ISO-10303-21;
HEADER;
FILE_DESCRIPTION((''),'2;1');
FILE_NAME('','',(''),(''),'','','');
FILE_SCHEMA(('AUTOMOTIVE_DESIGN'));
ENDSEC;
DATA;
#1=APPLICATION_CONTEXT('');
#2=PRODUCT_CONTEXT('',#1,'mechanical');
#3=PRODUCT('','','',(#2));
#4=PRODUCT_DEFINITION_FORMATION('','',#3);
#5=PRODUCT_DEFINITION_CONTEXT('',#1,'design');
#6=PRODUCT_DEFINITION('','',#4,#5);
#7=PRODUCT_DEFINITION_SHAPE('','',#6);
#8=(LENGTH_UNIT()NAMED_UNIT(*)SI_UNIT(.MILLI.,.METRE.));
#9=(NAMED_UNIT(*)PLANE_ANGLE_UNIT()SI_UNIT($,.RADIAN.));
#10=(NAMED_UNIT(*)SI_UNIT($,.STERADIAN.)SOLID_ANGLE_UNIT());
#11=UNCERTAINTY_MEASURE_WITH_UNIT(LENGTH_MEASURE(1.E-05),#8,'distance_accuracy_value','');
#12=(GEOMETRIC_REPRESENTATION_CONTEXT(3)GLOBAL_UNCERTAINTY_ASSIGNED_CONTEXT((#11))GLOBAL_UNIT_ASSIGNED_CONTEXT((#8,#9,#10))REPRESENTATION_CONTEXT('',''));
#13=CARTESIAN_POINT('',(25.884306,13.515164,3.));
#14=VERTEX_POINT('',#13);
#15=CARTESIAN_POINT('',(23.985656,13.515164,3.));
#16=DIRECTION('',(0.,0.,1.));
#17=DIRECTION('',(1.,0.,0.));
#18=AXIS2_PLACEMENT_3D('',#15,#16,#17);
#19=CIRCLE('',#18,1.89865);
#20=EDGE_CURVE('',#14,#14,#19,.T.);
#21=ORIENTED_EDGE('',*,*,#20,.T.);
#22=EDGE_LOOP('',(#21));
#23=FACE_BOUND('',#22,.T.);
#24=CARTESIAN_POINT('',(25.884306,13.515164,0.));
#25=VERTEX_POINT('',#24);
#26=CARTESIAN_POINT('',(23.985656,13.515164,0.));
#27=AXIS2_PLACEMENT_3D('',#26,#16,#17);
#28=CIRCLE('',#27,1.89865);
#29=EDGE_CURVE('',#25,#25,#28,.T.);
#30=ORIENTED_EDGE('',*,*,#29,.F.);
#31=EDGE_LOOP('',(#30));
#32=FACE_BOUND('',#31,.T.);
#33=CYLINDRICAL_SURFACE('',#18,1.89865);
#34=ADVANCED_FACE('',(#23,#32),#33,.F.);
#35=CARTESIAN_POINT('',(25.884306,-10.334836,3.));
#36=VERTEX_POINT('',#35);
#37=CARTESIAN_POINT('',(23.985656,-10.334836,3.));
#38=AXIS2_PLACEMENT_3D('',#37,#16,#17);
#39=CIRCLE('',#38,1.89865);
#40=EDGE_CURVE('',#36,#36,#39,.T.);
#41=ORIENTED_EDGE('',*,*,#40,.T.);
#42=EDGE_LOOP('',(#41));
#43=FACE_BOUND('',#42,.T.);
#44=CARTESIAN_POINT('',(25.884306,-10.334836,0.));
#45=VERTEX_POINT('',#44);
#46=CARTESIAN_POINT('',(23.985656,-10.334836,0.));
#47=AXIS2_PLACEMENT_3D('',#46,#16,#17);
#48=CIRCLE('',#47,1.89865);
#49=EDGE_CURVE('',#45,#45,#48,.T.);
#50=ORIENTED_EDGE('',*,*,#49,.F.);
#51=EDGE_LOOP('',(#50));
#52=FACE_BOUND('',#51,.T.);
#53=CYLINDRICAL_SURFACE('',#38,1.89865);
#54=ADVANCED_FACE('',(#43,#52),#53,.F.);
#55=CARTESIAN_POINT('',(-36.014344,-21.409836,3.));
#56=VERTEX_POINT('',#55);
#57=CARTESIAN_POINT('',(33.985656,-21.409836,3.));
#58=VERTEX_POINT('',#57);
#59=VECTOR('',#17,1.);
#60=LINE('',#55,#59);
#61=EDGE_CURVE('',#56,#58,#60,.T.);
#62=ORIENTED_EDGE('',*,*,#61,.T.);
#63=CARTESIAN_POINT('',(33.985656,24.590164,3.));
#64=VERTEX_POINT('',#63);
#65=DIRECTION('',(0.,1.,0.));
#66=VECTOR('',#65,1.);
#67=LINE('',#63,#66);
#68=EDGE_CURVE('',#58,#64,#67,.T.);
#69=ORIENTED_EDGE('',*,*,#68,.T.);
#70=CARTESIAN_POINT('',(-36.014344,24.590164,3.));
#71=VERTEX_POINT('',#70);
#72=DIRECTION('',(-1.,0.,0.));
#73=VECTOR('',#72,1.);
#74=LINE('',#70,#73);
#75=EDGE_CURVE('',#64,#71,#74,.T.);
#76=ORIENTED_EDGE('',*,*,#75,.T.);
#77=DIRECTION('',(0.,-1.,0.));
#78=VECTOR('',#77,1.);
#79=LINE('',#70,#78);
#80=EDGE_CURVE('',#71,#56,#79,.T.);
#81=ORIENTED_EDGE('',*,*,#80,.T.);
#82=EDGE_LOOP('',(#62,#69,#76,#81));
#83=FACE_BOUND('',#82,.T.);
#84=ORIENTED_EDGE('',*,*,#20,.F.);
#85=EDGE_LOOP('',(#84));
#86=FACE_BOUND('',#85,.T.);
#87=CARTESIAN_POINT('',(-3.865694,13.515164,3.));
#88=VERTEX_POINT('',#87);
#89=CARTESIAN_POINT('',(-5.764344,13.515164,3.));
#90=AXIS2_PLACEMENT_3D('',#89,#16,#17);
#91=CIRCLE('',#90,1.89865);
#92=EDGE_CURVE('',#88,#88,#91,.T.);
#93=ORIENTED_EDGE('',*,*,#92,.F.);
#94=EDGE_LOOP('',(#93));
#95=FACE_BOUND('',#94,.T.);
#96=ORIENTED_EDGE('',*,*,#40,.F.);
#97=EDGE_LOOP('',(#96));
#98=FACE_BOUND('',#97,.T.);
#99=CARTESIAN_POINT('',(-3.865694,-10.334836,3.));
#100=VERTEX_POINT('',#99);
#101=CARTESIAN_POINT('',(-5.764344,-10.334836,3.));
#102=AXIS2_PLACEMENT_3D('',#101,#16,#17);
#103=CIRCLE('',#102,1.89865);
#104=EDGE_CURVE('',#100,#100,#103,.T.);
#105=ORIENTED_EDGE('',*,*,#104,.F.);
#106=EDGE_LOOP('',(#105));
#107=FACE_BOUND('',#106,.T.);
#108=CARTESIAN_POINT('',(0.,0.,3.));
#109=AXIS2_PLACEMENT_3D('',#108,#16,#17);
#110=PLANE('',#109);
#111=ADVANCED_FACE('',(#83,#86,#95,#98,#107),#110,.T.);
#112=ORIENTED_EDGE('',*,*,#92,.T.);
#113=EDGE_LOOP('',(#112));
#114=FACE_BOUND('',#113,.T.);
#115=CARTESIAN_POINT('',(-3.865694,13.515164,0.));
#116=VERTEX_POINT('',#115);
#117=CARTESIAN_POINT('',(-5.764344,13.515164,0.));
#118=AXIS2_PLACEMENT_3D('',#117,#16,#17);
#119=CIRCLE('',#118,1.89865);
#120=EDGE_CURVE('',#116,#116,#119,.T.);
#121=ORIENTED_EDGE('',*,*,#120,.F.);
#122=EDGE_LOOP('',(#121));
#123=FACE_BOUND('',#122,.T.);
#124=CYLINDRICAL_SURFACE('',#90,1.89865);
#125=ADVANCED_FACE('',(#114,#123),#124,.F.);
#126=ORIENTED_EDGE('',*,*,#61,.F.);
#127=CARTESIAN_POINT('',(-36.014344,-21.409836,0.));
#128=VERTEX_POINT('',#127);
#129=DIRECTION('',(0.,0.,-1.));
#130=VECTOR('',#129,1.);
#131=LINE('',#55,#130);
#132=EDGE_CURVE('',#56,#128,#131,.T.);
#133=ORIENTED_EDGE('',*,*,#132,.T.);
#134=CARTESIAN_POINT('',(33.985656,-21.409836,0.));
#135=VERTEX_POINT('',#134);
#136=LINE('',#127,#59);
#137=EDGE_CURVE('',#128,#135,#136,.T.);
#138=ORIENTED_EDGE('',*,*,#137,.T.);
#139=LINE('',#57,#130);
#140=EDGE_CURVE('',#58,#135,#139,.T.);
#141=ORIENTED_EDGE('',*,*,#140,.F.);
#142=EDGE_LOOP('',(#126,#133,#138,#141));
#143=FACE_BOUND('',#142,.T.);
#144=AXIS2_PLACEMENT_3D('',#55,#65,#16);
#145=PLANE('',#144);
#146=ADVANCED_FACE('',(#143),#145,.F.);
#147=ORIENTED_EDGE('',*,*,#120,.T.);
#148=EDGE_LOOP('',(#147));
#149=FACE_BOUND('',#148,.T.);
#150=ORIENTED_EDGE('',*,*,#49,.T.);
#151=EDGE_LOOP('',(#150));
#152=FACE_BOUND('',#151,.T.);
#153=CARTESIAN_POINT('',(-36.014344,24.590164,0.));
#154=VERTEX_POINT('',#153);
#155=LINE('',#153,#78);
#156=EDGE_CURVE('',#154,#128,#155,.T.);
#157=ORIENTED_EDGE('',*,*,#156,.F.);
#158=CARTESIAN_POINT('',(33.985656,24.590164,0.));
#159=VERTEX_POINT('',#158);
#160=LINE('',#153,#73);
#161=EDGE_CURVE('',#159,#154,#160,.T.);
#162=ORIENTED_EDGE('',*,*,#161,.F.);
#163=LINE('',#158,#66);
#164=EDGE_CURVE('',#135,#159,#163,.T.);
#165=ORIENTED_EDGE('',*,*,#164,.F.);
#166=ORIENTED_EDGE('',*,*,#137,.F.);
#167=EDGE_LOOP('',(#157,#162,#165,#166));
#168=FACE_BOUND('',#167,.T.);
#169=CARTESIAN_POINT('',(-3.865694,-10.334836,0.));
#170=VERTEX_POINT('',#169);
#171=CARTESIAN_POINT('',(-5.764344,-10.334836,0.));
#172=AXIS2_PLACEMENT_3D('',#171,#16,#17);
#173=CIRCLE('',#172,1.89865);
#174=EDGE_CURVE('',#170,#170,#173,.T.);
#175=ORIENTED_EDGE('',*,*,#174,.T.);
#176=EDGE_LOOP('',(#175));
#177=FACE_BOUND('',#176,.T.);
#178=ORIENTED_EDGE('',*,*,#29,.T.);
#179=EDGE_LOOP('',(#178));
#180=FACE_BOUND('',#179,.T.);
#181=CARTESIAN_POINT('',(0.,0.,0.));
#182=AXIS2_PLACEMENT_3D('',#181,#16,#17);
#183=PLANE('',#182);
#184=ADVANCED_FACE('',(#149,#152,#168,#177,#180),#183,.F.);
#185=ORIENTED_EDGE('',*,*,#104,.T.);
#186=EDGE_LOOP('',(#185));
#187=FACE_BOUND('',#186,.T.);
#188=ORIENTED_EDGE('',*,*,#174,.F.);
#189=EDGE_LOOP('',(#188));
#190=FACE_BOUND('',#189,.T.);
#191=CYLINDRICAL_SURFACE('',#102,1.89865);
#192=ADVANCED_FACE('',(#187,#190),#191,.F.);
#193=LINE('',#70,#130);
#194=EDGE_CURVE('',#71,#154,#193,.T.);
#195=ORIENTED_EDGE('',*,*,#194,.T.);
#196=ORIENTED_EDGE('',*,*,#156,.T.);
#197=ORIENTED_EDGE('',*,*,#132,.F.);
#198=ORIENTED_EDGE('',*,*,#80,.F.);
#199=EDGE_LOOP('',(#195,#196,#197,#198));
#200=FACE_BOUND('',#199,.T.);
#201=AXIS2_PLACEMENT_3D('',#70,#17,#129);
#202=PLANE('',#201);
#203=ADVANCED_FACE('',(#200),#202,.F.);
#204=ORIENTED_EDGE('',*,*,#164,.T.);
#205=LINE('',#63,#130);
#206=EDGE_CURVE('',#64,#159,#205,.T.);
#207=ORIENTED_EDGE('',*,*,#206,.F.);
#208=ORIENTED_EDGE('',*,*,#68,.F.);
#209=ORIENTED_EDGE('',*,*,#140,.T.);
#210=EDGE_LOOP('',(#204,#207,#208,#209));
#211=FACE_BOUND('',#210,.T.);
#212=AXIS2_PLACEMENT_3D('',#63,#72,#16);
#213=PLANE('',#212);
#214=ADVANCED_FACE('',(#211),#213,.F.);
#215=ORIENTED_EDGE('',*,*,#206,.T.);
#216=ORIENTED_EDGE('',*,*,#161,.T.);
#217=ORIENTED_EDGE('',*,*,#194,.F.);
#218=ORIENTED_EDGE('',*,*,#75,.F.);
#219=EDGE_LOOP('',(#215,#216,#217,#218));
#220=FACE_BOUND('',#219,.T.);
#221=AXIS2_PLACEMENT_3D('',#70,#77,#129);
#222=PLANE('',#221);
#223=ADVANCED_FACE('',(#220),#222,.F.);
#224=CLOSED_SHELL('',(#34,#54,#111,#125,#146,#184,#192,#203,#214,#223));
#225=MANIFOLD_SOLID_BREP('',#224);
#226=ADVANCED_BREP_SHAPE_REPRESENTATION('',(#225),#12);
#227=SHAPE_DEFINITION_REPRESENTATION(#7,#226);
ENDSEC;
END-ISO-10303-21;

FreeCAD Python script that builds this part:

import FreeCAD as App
import Part
import Sketcher
from FreeCAD import Vector
Q = App.Units.Quantity


def add_polygon(sketch, points):
    """Adds a closed chain of lines whose ends are joined by coincident constraints."""
    first, n = sketch.GeometryCount, len(points)
    for a, b in zip(points, points[1:] + points[:1]):
        sketch.addGeometry(Part.LineSegment(App.Vector(*a, 0), App.Vector(*b, 0)), False)
    for i in range(n):
        sketch.addConstraint(Sketcher.Constraint("Coincident", first + i, 2, first + (i + 1) % n, 1))

doc = App.newDocument("Part")
params = doc.addObject("Spreadsheet::Sheet", "Params")
for row, (alias, value) in enumerate([
    ("sketch1_width", "70 mm"),
    ("sketch1_height", "46 mm"),
    ("pad1_length", "3 mm"),
    ("hole_diameter", "3.7973 mm"),
], start=1):
    params.set(f"A{row}", alias)
    params.set(f"B{row}", "=" + value)
    params.setAlias(f"B{row}", alias)

body = doc.addObject("PartDesign::Body", "Body")

# Sketch on XY plane
sketch1 = body.newObject("Sketcher::SketchObject", "Sketch")
sketch1.AttachmentSupport = (doc.getObject("XY_Plane"), [""])
sketch1.MapMode = "FlatFace"
add_polygon(sketch1, [(-36, 25), (-36, -21), (34, -21), (34, 25)])  # lines 0-3
sketch1.addConstraint([
    Sketcher.Constraint("Vertical", 0),
    Sketcher.Constraint("Horizontal", 1),
    Sketcher.Constraint("Vertical", 2),
    Sketcher.Constraint("Horizontal", 3),
    Sketcher.Constraint("DistanceX", 1, 1, 1, 2, Q("70 mm")),
    Sketcher.Constraint("DistanceY", 0, 2, 0, 1, Q("46 mm")),
    Sketcher.Constraint("DistanceX", 0, 2, -1, 1, Q("36.014344 mm")),
    Sketcher.Constraint("DistanceY", 0, 2, -1, 1, Q("21.409836 mm")),
])
sketch1.setExpression("Constraints[8]", "Params.sketch1_width")
sketch1.setExpression("Constraints[9]", "Params.sketch1_height")
pad1 = body.newObject("PartDesign::Pad", "Pad")
pad1.Profile = sketch1
pad1.setExpression("Length", "Params.pad1_length")

# Sketch on XY plane
sketch2 = body.newObject("Sketcher::SketchObject", "Sketch001")
sketch2.AttachmentSupport = (doc.getObject("XY_Plane"), [""])
sketch2.MapMode = "FlatFace"
sketch2.AttachmentOffset = App.Placement(Vector(0, 0, 3), App.Rotation())
sketch2.addGeometry([
    Part.Circle(Vector(24, 13.5, 0), Vector(0, 0, 1), 1.9),
    Part.Circle(Vector(24, -10.3, 0), Vector(0, 0, 1), 1.9),
    Part.Circle(Vector(-5.8, -10.3, 0), Vector(0, 0, 1), 1.9),
    Part.Circle(Vector(-5.8, 13.5, 0), Vector(0, 0, 1), 1.9),
], False)
sketch2.addConstraint([
    Sketcher.Constraint("Equal", 0, 1),
    Sketcher.Constraint("Equal", 1, 2),
    Sketcher.Constraint("Equal", 2, 3),
    Sketcher.Constraint("Horizontal", 1, 3, 2, 3),
    Sketcher.Constraint("Horizontal", 0, 3, 3, 3),
    Sketcher.Constraint("Vertical", 0, 3, 1, 3),
    Sketcher.Constraint("Vertical", 2, 3, 3, 3),
    Sketcher.Constraint("Diameter", 0, Q("3.7973 mm")),
    Sketcher.Constraint("DistanceY", 1, 3, 0, 3, Q("23.85 mm")),
    Sketcher.Constraint("DistanceX", 2, 3, 1, 3, Q("29.75 mm")),
    Sketcher.Constraint("DistanceX", -1, 1, 0, 3, Q("23.985656 mm")),
    Sketcher.Constraint("DistanceY", -1, 1, 0, 3, Q("13.515164 mm")),
])
doc.recompute()
hole = body.newObject("PartDesign::Hole", "Hole")
hole.Profile = sketch2
hole.ThreadType = "None"
hole.setExpression("Diameter", "Params.hole_diameter")
hole.DepthType = "ThroughAll"

doc.recompute()
